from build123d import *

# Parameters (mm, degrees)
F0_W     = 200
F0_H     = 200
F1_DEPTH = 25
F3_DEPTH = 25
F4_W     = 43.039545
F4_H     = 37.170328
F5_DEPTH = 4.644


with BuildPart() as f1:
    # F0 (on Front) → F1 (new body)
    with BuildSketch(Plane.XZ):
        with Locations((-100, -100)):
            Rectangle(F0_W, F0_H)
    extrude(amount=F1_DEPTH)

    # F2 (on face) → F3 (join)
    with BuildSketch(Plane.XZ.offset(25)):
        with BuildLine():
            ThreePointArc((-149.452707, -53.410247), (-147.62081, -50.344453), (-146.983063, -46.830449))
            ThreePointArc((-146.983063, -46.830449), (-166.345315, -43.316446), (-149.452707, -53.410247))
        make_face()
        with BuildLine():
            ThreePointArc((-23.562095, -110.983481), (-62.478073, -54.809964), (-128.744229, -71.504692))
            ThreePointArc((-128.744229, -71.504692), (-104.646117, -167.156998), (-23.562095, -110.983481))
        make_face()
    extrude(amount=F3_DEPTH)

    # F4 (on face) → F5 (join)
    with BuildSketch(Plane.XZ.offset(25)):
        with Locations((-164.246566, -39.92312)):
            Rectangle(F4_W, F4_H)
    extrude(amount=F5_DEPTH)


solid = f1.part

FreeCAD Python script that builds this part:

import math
import FreeCAD as App
import Part
import Sketcher

V = App.Vector
Q = App.Units.Quantity


def add_polygon(sketch, points):
    """Adds a closed chain of lines whose ends are joined by coincident constraints."""
    first, n = sketch.GeometryCount, len(points)
    for a, b in zip(points, points[1:] + points[:1]):
        sketch.addGeometry(Part.LineSegment(App.Vector(*a, 0), App.Vector(*b, 0)), False)
    for i in range(n):
        sketch.addConstraint(Sketcher.Constraint("Coincident", first + i, 2, first + (i + 1) % n, 1))

doc = App.newDocument("Part")
body = doc.addObject("PartDesign::Body", "Body")

# Sketch on XZ plane
sketch1 = body.newObject("Sketcher::SketchObject", "Sketch")
sketch1.AttachmentSupport = (doc.getObject("XZ_Plane"), [""])
sketch1.MapMode = "FlatFace"
add_polygon(sketch1, [(-200, 0), (-200, -200), (0, -200), (0, 0)])  # lines 0-3
sketch1.addConstraint([
    Sketcher.Constraint("Vertical", 0),
    Sketcher.Constraint("Horizontal", 1),
    Sketcher.Constraint("Vertical", 2),
    Sketcher.Constraint("Horizontal", 3),
    Sketcher.Constraint("Coincident", 2, 2, -1, 1),
    Sketcher.Constraint("Equal", 3, 0),
    Sketcher.Constraint("DistanceX", 1, 1, 1, 2, Q("200 mm")),
])
pad1 = body.newObject("PartDesign::Pad", "Pad")
pad1.Profile = sketch1
pad1.Length = 25

# Sketch on XZ plane
sketch2 = body.newObject("Sketcher::SketchObject", "Sketch001")
sketch2.AttachmentSupport = (doc.getObject("XZ_Plane"), [""])
sketch2.MapMode = "FlatFace"
sketch2.AttachmentOffset = App.Placement(V(0, 0, 25), App.Rotation())
sketch2.addGeometry([
    Part.ArcOfCircle(Part.Circle(V(-157, -47, 0), V(0, 0, 1), 10), math.radians(-41), math.radians(0)),
    Part.ArcOfCircle(Part.Circle(V(-157, -47, 0), V(0, 0, 1), 10), math.radians(0), math.radians(319)),
    Part.ArcOfCircle(Part.Circle(V(-84, -111, 0), V(0, 0, 1), 60), math.radians(0), math.radians(139)),
    Part.ArcOfCircle(Part.Circle(V(-84, -111, 0), V(0, 0, 1), 60), math.radians(139), math.radians(360)),
], False)
sketch2.addConstraint([
    Sketcher.Constraint("Tangent", 0, 1, 1, 2),
    Sketcher.Constraint("Coincident", 1, 1, 0, 2),
    Sketcher.Constraint("Tangent", 2, 1, 3, 2),
    Sketcher.Constraint("Coincident", 3, 1, 2, 2),
    Sketcher.Constraint("Horizontal", 0, 3, 1, 1),
    Sketcher.Constraint("Horizontal", 3, 3, 2, 1),
    Sketcher.Constraint("Radius", 1, Q("10 mm")),
    Sketcher.Constraint("Radius", 2, Q("60 mm")),
    Sketcher.Constraint("DistanceX", 0, 3, -1, 1, Q("156.98306 mm")),
    Sketcher.Constraint("DistanceY", 0, 3, -1, 1, Q("46.83045 mm")),
    Sketcher.Constraint("DistanceY", 2, 3, -1, 1, Q("110.983481 mm")),
    Sketcher.Constraint("DistanceX", 3, 1, -1, 1, Q("128.744229 mm")),
    Sketcher.Constraint("DistanceX", 0, 1, 3, 3, Q("65.890612 mm")),
    Sketcher.Constraint("DistanceX", 1, 1, 2, 1, Q("123.420968 mm")),
])
pad2 = body.newObject("PartDesign::Pad", "Pad001")
pad2.Profile = sketch2
pad2.Length = 25

# Sketch on XZ plane
sketch3 = body.newObject("Sketcher::SketchObject", "Sketch002")
sketch3.AttachmentSupport = (doc.getObject("XZ_Plane"), [""])
sketch3.MapMode = "FlatFace"
sketch3.AttachmentOffset = App.Placement(V(0, 0, 25), App.Rotation())
add_polygon(sketch3, [(-186, -21), (-186, -59), (-143, -59), (-143, -21)])  # lines 0-3
sketch3.addConstraint([
    Sketcher.Constraint("Vertical", 0),
    Sketcher.Constraint("Horizontal", 1),
    Sketcher.Constraint("Vertical", 2),
    Sketcher.Constraint("Horizontal", 3),
    Sketcher.Constraint("DistanceY", 0, 2, 0, 1, Q("37.170328 mm")),
    Sketcher.Constraint("DistanceX", 1, 1, 1, 2, Q("43.039545 mm")),
    Sketcher.Constraint("DistanceX", 0, 2, -1, 1, Q("185.766338 mm")),
    Sketcher.Constraint("DistanceY", 0, 2, -1, 1, Q("58.508284 mm")),
])
pad3 = body.newObject("PartDesign::Pad", "Pad002")
pad3.Profile = sketch3
pad3.Length = 4.644

doc.recompute()
